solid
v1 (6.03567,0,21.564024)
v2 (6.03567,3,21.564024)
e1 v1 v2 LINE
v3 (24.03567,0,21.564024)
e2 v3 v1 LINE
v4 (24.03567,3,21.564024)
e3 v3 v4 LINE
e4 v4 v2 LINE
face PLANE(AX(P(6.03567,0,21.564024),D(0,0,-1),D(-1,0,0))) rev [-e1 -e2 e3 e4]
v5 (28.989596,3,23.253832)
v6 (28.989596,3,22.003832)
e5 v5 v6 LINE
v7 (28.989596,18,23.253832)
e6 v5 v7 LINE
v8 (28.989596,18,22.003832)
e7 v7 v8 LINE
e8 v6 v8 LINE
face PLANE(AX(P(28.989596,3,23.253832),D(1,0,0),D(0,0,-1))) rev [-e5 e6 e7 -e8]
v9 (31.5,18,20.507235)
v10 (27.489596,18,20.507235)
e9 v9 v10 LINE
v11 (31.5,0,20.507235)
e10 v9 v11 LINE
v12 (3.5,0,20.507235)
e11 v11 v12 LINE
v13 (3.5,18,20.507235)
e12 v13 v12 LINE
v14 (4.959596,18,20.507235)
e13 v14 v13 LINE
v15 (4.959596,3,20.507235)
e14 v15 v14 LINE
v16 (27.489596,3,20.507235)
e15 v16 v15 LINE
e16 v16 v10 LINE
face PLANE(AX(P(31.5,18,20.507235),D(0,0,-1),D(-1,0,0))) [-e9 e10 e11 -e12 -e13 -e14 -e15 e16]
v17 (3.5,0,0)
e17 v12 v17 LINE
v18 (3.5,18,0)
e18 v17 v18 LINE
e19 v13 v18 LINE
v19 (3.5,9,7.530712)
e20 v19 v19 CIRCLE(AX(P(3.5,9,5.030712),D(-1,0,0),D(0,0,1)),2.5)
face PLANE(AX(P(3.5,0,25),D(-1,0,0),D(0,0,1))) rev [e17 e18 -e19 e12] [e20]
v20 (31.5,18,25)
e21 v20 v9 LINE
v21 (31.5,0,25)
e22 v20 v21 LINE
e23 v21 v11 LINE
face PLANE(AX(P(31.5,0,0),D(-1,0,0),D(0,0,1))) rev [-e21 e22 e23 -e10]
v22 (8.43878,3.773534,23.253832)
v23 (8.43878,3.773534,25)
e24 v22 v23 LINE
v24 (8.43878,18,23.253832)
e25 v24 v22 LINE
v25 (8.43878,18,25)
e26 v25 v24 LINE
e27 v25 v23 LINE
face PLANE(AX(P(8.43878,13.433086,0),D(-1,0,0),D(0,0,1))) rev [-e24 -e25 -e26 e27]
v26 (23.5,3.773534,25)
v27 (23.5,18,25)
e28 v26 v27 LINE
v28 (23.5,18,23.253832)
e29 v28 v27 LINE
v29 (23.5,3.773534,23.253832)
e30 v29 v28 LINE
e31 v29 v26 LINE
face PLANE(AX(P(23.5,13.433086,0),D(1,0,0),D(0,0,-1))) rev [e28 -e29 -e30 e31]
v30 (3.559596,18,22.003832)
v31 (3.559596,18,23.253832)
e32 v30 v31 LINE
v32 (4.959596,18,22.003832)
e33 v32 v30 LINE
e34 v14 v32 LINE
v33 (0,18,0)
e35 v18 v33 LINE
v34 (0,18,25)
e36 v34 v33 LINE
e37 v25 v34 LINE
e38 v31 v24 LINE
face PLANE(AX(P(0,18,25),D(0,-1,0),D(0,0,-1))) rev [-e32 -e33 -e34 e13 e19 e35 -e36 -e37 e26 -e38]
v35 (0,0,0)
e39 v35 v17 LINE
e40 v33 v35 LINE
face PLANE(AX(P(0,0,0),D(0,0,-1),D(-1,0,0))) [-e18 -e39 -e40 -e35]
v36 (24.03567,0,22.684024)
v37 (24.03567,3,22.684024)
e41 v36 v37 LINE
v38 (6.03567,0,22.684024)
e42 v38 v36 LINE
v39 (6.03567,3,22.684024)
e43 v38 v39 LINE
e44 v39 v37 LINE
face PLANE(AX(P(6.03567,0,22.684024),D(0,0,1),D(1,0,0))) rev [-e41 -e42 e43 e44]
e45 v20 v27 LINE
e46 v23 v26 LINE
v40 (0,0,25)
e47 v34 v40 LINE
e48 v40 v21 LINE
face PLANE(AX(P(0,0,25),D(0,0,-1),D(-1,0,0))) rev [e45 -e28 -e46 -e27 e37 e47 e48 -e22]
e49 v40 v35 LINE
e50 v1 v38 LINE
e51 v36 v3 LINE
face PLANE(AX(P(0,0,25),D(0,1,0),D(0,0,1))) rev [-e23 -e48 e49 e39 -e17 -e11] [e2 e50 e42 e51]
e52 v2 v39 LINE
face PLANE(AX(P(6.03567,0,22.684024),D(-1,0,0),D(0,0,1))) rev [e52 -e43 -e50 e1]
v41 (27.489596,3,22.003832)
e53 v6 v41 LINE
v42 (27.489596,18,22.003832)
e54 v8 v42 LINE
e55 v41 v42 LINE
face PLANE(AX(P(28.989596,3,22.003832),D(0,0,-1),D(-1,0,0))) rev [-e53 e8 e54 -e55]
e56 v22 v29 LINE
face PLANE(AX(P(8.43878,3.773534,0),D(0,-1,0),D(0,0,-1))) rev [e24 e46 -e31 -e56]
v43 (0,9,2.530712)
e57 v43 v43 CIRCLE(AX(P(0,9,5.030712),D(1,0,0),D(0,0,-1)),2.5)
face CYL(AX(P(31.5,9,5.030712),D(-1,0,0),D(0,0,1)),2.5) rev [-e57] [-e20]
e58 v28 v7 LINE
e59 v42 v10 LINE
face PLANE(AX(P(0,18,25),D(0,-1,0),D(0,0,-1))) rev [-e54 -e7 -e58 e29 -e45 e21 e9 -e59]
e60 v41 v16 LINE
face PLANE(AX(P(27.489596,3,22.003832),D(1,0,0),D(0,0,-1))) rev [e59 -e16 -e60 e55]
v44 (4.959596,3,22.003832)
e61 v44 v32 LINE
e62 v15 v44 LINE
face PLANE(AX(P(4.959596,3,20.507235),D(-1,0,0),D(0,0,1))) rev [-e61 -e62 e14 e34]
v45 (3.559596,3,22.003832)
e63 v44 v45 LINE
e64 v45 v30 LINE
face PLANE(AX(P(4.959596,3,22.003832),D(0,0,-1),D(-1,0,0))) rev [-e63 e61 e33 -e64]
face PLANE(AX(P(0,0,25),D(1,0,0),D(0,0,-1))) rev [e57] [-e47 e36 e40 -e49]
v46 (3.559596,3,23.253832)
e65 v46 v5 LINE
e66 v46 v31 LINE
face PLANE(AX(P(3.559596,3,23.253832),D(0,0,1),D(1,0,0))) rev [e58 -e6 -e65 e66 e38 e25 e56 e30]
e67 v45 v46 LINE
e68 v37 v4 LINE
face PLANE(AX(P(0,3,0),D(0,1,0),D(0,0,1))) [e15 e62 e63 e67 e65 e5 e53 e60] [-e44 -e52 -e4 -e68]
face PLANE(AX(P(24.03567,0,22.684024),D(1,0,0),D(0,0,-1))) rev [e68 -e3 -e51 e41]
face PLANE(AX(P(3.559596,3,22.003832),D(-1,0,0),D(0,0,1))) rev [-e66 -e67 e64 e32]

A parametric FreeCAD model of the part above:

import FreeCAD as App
import Part
import Sketcher
from FreeCAD import Vector


def add_polygon(sketch, points):
    """Adds a closed chain of lines whose ends are joined by coincident constraints."""
    first, n = sketch.GeometryCount, len(points)
    for a, b in zip(points, points[1:] + points[:1]):
        sketch.addGeometry(Part.LineSegment(App.Vector(*a, 0), App.Vector(*b, 0)), False)
    for i in range(n):
        sketch.addConstraint(Sketcher.Constraint("Coincident", first + i, 2, first + (i + 1) % n, 1))

doc = App.newDocument("Part")
body = doc.addObject("PartDesign::Body", "Body")

sketch1 = doc.addObject("Sketcher::SketchObject", "Sketch")
body.addObject(sketch1)
sketch1.AttachmentSupport = (doc.XY_Plane, [""])
sketch1.MapMode = "FlatFace"
add_polygon(sketch1, [(0, 18), (0, 0), (3.5, 0), (3.5, 18)])
sketch1.addConstraint(Sketcher.Constraint("Vertical", 0))
sketch1.addConstraint(Sketcher.Constraint("Horizontal", 1))
sketch1.addConstraint(Sketcher.Constraint("Vertical", 2))
sketch1.addConstraint(Sketcher.Constraint("Horizontal", 3))
sketch1.addConstraint(Sketcher.Constraint("Coincident", 0, 2, -1, 1))
sketch1.addConstraint(Sketcher.Constraint("DistanceY", 0, 2, 0, 1, 18.0))
sketch1.addConstraint(Sketcher.Constraint("DistanceX", 1, 1, 1, 2, 3.5))
pad1 = doc.addObject("PartDesign::Pad", "Pad")
body.addObject(pad1)
pad1.Profile = sketch1
pad1.Length = 25

sketch2 = doc.addObject("Sketcher::SketchObject", "Sketch001")
body.addObject(sketch2)
sketch2.AttachmentSupport = (doc.YZ_Plane, [""])
sketch2.MapMode = "FlatFace"
sketch2.AttachmentOffset = App.Placement(Vector(0, 0, 3.5), App.Rotation())
add_polygon(sketch2, [(18, 25), (0, 25), (0, 20.507235), (18, 20.507235)])
sketch2.addConstraint(Sketcher.Constraint("Horizontal", 0))
sketch2.addConstraint(Sketcher.Constraint("Vertical", 1))
sketch2.addConstraint(Sketcher.Constraint("Horizontal", 2))
sketch2.addConstraint(Sketcher.Constraint("Vertical", 3))
sketch2.addConstraint(Sketcher.Constraint("PointOnObject", 0, 2, -2))
sketch2.addConstraint(Sketcher.Constraint("DistanceX", 0, 2, 0, 1, 18.0))
sketch2.addConstraint(Sketcher.Constraint("DistanceY", -1, 1, 0, 2, 25.0))
sketch2.addConstraint(Sketcher.Constraint("DistanceY", 1, 2, 1, 1, 4.492765))
pad2 = doc.addObject("PartDesign::Pad", "Pad001")
body.addObject(pad2)
pad2.Profile = sketch2
pad2.Length = 28

sketch3 = doc.addObject("Sketcher::SketchObject", "Sketch002")
body.addObject(sketch3)
sketch3.AttachmentSupport = (doc.XZ_Plane, [""])
sketch3.MapMode = "FlatFace"
sketch3.AttachmentOffset = App.Placement(Vector(0, 0, -18), App.Rotation())
add_polygon(sketch3, [(4.959596, 20.507235), (4.959596, 22.003832), (3.559596, 22.003832), (3.559596, 23.253832), (28.989596, 23.253832), (28.989596, 22.003832), (27.489596, 22.003832), (27.489596, 20.507235)])
sketch3.addConstraint(Sketcher.Constraint("Vertical", 0))
sketch3.addConstraint(Sketcher.Constraint("Horizontal", 1))
sketch3.addConstraint(Sketcher.Constraint("Vertical", 2))
sketch3.addConstraint(Sketcher.Constraint("Horizontal", 3))
sketch3.addConstraint(Sketcher.Constraint("Vertical", 4))
sketch3.addConstraint(Sketcher.Constraint("Horizontal", 5))
sketch3.addConstraint(Sketcher.Constraint("Vertical", 6))
sketch3.addConstraint(Sketcher.Constraint("Horizontal", 7))
sketch3.addConstraint(Sketcher.Constraint("Horizontal", 1, 2, 4, 2))
sketch3.addConstraint(Sketcher.Constraint("DistanceX", 1, 2, 1, 1, 1.4))
sketch3.addConstraint(Sketcher.Constraint("DistanceX", 5, 2, 5, 1, 1.5))
sketch3.addConstraint(Sketcher.Constraint("DistanceX", 3, 1, 3, 2, 25.43))
sketch3.addConstraint(Sketcher.Constraint("DistanceY", 2, 1, 2, 2, 1.25))
sketch3.addConstraint(Sketcher.Constraint("DistanceY", 0, 1, 0, 2, 1.496598))
sketch3.addConstraint(Sketcher.Constraint("DistanceX", -1, 1, 0, 2, 4.959596))
sketch3.addConstraint(Sketcher.Constraint("DistanceY", -1, 1, 0, 2, 22.003832))
pocket1 = doc.addObject("PartDesign::Pocket", "Pocket")
body.addObject(pocket1)
pocket1.Profile = sketch3
pocket1.Length = 15
pocket1.Reversed = True

sketch4 = doc.addObject("Sketcher::SketchObject", "Sketch003")
body.addObject(sketch4)
sketch4.AttachmentSupport = (doc.XZ_Plane, [""])
sketch4.MapMode = "FlatFace"
sketch4.AttachmentOffset = App.Placement(Vector(0, 0, -3), App.Rotation())
add_polygon(sketch4, [(6.03567, 21.564024), (6.03567, 22.684024), (24.03567, 22.684024), (24.03567, 21.564024)])
sketch4.addConstraint(Sketcher.Constraint("Vertical", 0))
sketch4.addConstraint(Sketcher.Constraint("Horizontal", 1))
sketch4.addConstraint(Sketcher.Constraint("Vertical", 2))
sketch4.addConstraint(Sketcher.Constraint("Horizontal", 3))
sketch4.addConstraint(Sketcher.Constraint("DistanceX", 1, 1, 1, 2, 18.0))
sketch4.addConstraint(Sketcher.Constraint("DistanceY", 0, 1, 0, 2, 1.12))
sketch4.addConstraint(Sketcher.Constraint("DistanceX", -1, 1, 0, 2, 6.03567))
sketch4.addConstraint(Sketcher.Constraint("DistanceY", -1, 1, 0, 2, 22.684024))
pocket2 = doc.addObject("PartDesign::Pocket", "Pocket001")
body.addObject(pocket2)
pocket2.Profile = sketch4
pocket2.Type = "ThroughAll"
pocket2.Reversed = True

sketch5 = doc.addObject("Sketcher::SketchObject", "Sketch004")
body.addObject(sketch5)
sketch5.AttachmentSupport = (doc.XY_Plane, [""])
sketch5.MapMode = "FlatFace"
sketch5.AttachmentOffset = App.Placement(Vector(0, 0, 25), App.Rotation())
add_polygon(sketch5, [(8.43878, 13.433086), (8.43878, 3.773534), (23.5, 3.773534), (23.5, 13.433086)])
sketch5.addConstraint(Sketcher.Constraint("Vertical", 0))
sketch5.addConstraint(Sketcher.Constraint("Horizontal", 1))
sketch5.addConstraint(Sketcher.Constraint("Vertical", 2))
sketch5.addConstraint(Sketcher.Constraint("Horizontal", 3))
sketch5.addConstraint(Sketcher.Constraint("DistanceX", -1, 1, 1, 2, 23.5))
sketch5.addConstraint(Sketcher.Constraint("DistanceX", 1, 1, 1, 2, 15.06122))
sketch5.addConstraint(Sketcher.Constraint("DistanceY", 0, 2, 0, 1, 9.659551))
sketch5.addConstraint(Sketcher.Constraint("DistanceY", -1, 1, 0, 2, 3.773534))
pocket3 = doc.addObject("PartDesign::Pocket", "Pocket002")
body.addObject(pocket3)
pocket3.Profile = sketch5
pocket3.Type = "ThroughAll"

sketch6 = doc.addObject("Sketcher::SketchObject", "Sketch005")
body.addObject(sketch6)
sketch6.AttachmentSupport = (doc.YZ_Plane, [""])
sketch6.MapMode = "FlatFace"
sketch6.addGeometry(Part.Circle(Vector(9, 5.030712, 0), Vector(0, 0, 1), 2.5), False)
sketch6.addConstraint(Sketcher.Constraint("Diameter", 0, 5.0))
sketch6.addConstraint(Sketcher.Constraint("DistanceX", -1, 1, 0, 3, 9.0))
sketch6.addConstraint(Sketcher.Constraint("DistanceY", -1, 1, 0, 3, 5.030712))
pocket4 = doc.addObject("PartDesign::Pocket", "Pocket003")
body.addObject(pocket4)
pocket4.Profile = sketch6
pocket4.Type = "ThroughAll"
pocket4.Midplane = True

sketch7 = doc.addObject("Sketcher::SketchObject", "Sketch006")
body.addObject(sketch7)
sketch7.AttachmentSupport = (doc.XZ_Plane, [""])
sketch7.MapMode = "FlatFace"
sketch7.AttachmentOffset = App.Placement(Vector(0, 0, -13.433086), App.Rotation())
add_polygon(sketch7, [(8.43878, 25), (8.43878, 23.253832), (23.5, 23.253832), (23.5, 25)])
sketch7.addConstraint(Sketcher.Constraint("Vertical", 0))
sketch7.addConstraint(Sketcher.Constraint("Horizontal", 1))
sketch7.addConstraint(Sketcher.Constraint("Vertical", 2))
sketch7.addConstraint(Sketcher.Constraint("Horizontal", 3))
sketch7.addConstraint(Sketcher.Constraint("DistanceY", -1, 1, 2, 2, 25.0))
sketch7.addConstraint(Sketcher.Constraint("DistanceX", -1, 1, 1, 2, 23.5))
sketch7.addConstraint(Sketcher.Constraint("DistanceX", 1, 1, 1, 2, 15.06122))
sketch7.addConstraint(Sketcher.Constraint("DistanceY", 0, 2, 0, 1, 1.746168))
pocket5 = doc.addObject("PartDesign::Pocket", "Pocket004")
body.addObject(pocket5)
pocket5.Profile = sketch7
pocket5.Type = "ThroughAll"

doc.recompute()
